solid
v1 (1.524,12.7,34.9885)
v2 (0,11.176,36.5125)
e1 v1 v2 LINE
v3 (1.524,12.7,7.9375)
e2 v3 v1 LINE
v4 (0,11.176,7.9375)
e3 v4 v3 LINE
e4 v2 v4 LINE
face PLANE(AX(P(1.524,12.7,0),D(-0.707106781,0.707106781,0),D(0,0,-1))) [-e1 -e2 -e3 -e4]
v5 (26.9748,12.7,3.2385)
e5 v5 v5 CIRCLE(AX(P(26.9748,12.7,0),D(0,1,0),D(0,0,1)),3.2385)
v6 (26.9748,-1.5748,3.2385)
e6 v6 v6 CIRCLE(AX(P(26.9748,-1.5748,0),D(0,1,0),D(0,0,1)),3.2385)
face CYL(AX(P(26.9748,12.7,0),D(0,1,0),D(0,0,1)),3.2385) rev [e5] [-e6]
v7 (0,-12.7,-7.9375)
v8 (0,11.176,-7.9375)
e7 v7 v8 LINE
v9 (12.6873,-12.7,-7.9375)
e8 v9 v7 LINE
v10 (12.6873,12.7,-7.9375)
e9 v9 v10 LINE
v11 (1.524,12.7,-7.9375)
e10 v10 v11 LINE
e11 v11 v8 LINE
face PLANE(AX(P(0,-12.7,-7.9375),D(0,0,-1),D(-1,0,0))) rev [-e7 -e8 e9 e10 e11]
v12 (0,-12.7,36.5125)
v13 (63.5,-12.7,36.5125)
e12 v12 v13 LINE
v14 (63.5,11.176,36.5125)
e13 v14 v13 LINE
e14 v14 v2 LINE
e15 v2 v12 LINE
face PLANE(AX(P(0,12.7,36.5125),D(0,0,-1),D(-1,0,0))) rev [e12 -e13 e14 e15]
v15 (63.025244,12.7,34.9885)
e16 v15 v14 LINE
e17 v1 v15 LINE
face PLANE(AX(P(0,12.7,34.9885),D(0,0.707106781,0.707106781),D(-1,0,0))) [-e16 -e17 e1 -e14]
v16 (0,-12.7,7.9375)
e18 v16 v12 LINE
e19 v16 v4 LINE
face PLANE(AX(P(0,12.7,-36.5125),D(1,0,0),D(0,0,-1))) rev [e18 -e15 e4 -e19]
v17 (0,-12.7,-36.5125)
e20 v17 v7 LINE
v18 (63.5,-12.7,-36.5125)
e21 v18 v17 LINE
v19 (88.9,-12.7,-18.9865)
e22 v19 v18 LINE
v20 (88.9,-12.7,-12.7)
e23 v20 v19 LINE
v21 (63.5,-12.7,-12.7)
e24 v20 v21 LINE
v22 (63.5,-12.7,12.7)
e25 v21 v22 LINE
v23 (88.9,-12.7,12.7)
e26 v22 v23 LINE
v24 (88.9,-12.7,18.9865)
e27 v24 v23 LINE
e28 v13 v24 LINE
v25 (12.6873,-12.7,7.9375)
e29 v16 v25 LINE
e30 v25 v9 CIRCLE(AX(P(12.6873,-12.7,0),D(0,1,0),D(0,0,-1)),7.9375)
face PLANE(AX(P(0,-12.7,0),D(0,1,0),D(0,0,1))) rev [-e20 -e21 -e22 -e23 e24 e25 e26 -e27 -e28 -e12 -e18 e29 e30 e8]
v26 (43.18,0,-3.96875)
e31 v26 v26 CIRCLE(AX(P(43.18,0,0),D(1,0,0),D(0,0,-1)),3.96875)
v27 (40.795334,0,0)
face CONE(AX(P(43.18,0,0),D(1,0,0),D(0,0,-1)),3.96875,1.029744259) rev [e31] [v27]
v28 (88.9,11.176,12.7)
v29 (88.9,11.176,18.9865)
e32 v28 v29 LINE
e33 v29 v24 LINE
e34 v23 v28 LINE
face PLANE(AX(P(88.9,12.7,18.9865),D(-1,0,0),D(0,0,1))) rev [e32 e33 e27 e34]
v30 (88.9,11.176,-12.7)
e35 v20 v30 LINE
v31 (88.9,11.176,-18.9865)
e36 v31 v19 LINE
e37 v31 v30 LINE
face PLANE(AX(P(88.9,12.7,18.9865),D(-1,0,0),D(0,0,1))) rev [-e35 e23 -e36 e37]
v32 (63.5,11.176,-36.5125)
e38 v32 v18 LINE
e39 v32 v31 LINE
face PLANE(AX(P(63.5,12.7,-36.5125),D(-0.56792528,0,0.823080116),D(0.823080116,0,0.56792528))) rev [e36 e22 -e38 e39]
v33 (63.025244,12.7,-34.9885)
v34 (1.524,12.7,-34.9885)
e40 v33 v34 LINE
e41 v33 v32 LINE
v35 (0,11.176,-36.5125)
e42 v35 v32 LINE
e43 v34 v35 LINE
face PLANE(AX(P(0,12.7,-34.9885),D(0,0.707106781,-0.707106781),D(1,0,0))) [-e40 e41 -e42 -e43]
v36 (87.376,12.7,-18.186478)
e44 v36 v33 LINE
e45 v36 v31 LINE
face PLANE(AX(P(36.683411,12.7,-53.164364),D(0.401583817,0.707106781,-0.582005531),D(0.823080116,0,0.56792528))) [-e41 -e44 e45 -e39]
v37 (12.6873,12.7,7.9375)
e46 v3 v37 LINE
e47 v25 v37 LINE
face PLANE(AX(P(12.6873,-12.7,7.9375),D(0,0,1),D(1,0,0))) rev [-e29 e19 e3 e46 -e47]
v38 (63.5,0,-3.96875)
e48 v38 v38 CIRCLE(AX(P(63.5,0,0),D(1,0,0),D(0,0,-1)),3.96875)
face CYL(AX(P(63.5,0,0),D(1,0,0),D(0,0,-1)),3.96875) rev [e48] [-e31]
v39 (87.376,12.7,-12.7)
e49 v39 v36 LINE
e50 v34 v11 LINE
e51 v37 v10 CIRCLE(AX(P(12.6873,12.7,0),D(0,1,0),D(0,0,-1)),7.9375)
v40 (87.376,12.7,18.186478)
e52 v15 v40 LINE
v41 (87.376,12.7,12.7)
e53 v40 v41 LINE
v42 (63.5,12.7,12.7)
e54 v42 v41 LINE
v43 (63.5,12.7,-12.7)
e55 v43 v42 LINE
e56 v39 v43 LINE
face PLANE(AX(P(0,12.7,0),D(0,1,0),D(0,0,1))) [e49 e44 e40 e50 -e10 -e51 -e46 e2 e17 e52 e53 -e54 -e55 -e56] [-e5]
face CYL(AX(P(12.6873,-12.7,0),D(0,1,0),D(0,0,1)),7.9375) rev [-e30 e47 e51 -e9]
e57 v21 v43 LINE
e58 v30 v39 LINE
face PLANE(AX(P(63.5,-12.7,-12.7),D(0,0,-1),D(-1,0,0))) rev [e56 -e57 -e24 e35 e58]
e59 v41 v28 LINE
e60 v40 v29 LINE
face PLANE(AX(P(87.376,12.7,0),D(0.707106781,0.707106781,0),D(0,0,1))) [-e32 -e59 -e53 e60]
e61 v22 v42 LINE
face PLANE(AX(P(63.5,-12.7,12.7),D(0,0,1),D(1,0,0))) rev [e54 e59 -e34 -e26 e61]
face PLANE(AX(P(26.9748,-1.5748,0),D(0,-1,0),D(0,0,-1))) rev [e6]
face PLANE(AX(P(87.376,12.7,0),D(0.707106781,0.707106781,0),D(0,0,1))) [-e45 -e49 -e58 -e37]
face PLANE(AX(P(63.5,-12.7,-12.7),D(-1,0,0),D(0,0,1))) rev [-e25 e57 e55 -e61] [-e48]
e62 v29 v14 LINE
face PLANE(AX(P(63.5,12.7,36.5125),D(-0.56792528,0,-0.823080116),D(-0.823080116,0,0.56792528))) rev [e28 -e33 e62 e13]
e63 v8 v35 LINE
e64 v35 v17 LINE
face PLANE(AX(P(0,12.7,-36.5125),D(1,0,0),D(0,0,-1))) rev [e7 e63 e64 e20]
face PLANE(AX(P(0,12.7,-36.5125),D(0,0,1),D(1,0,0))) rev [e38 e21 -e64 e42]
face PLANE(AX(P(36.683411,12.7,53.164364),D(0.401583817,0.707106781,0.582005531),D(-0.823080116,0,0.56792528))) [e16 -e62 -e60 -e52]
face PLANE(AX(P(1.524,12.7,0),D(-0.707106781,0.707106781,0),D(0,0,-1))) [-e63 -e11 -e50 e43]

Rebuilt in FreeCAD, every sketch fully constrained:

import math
import FreeCAD as App
import Part
import Sketcher
Q = App.Units.Quantity


def edges_at(feature, points):
    """Names of the edges that pass closest to the given points."""
    edges = feature.Shape.Edges
    near = lambda p: min(range(len(edges)), key=lambda i: edges[i].distToShape(Part.Vertex(*p))[0])
    return sorted({f"Edge{near(p) + 1}" for p in points})

doc = App.newDocument("Part")
params = doc.addObject("Spreadsheet::Sheet", "Params")
for row, (alias, value) in enumerate([
    ("sketch1_width", "2.5 in"),
    ("sketch1_height", "2.875 in"),
    ("sketch1_height2", "1.495 in"),
    ("pad1_length", "1 in"),
    ("sketch2_width", "1 in"),
    ("sketch3_radius", "0.3125 in"),
    ("sketch4_diameter", "0.255 in"),
    ("hole_diameter", "0.255 in"),
    ("hole_depth", "0.562 in"),
    ("sketch5_diameter", "0.3125 in"),
    ("hole2_diameter", "0.3125 in"),
    ("hole2_depth", "0.8 in"),
    ("chamfer_size", "0.06 in"),
], start=1):
    params.set(f"A{row}", alias)
    params.set(f"B{row}", "=" + value)
    params.setAlias(f"B{row}", alias)

body = doc.addObject("PartDesign::Body", "Body")

# Sketch on XZ plane
sketch1 = doc.addObject("Sketcher::SketchObject", "Sketch")
body.addObject(sketch1)
sketch1.AttachmentSupport = (doc.XZ_Plane, [""])
sketch1.MapMode = "FlatFace"
sketch1.addGeometry([
    Part.LineSegment(App.Vector(0, -37, 0), App.Vector(0, 37, 0)),  # 0
    Part.LineSegment(App.Vector(0, 37, 0), App.Vector(64, 37, 0)),  # 1
    Part.LineSegment(App.Vector(64, 37, 0), App.Vector(89, 19, 0)),  # 2
    Part.LineSegment(App.Vector(89, 19, 0), App.Vector(89, -19, 0)),  # 3
    Part.LineSegment(App.Vector(89, -19, 0), App.Vector(64, -37, 0)),  # 4
    Part.LineSegment(App.Vector(64, -37, 0), App.Vector(0, -37, 0)),  # 5
], False)
sketch1.addConstraint([
    Sketcher.Constraint("Coincident", 0, 2, 1, 1),
    Sketcher.Constraint("Coincident", 1, 2, 2, 1),
    Sketcher.Constraint("Coincident", 2, 2, 3, 1),
    Sketcher.Constraint("Coincident", 3, 2, 4, 1),
    Sketcher.Constraint("Coincident", 4, 2, 5, 1),
    Sketcher.Constraint("Coincident", 5, 2, 0, 1),
    Sketcher.Constraint("Vertical", 0),
    Sketcher.Constraint("Horizontal", 1),
    Sketcher.Constraint("Vertical", 3),
    Sketcher.Constraint("Horizontal", 5),
    Sketcher.Constraint("Symmetric", 0, 2, 5, 2, -1, 1),
    Sketcher.Constraint("Vertical", 1, 2, 4, 2),
    Sketcher.Constraint("Equal", 2, 4),
    Sketcher.Constraint("DistanceX", 1, 1, 1, 2, Q("2.5 in")),
    Sketcher.Constraint("DistanceX", 1, 2, 2, 2, Q("1 in")),
    Sketcher.Constraint("DistanceY", 0, 1, 0, 2, Q("2.875 in")),
    Sketcher.Constraint("DistanceY", 3, 2, 3, 1, Q("1.495 in")),
])
sketch1.setExpression("Constraints[13]", "Params.sketch1_width")
sketch1.setExpression("Constraints[15]", "Params.sketch1_height")
sketch1.setExpression("Constraints[16]", "Params.sketch1_height2")
pad1 = doc.addObject("PartDesign::Pad", "Pad")
body.addObject(pad1)
pad1.Profile = sketch1
pad1.setExpression("Length", "Params.pad1_length")
pad1.Midplane = True

# Sketch on XZ plane
sketch2 = doc.addObject("Sketcher::SketchObject", "Sketch001")
body.addObject(sketch2)
sketch2.AttachmentSupport = (doc.XZ_Plane, [""])
sketch2.MapMode = "FlatFace"
sketch2.AttachmentOffset = App.Placement(App.Vector(0, 0, -0.5 * 25.4), App.Rotation())
sketch2.addGeometry([
    Part.LineSegment(App.Vector(64, -13, 0), App.Vector(64, 13, 0)),
    Part.LineSegment(App.Vector(64, 13, 0), App.Vector(89, 13, 0)),
    Part.LineSegment(App.Vector(89, 13, 0), App.Vector(89, -13, 0)),
    Part.LineSegment(App.Vector(89, -13, 0), App.Vector(64, -13, 0)),
], False)
sketch2.addConstraint([
    Sketcher.Constraint("Coincident", 0, 2, 1, 1),
    Sketcher.Constraint("Coincident", 1, 2, 2, 1),
    Sketcher.Constraint("Coincident", 2, 2, 3, 1),
    Sketcher.Constraint("Coincident", 3, 2, 0, 1),
    Sketcher.Constraint("Vertical", 0),
    Sketcher.Constraint("Horizontal", 1),
    Sketcher.Constraint("Vertical", 2),
    Sketcher.Constraint("Horizontal", 3),
    Sketcher.Constraint("Equal", 3, 0),
    Sketcher.Constraint("DistanceX", 1, 1, 1, 2, Q("1 in")),
    Sketcher.Constraint("DistanceX", -1, 1, 0, 2, Q("2.5 in")),
    Sketcher.Constraint("DistanceY", -1, 1, 0, 2, Q("0.5 in")),
])
sketch2.setExpression("Constraints[9]", "Params.sketch2_width")
pocket1 = doc.addObject("PartDesign::Pocket", "Pocket")
body.addObject(pocket1)
pocket1.Profile = sketch2
pocket1.Type = "ThroughAll"
pocket1.Reversed = True

# Sketch on XZ plane
sketch3 = doc.addObject("Sketcher::SketchObject", "Sketch002")
body.addObject(sketch3)
sketch3.AttachmentSupport = (doc.XZ_Plane, [""])
sketch3.MapMode = "FlatFace"
sketch3.AttachmentOffset = App.Placement(App.Vector(0, 0, -0.5 * 25.4), App.Rotation())
sketch3.addGeometry([
    Part.LineSegment(App.Vector(13, -8, 0), App.Vector(0, -8, 0)),
    Part.LineSegment(App.Vector(0, -8, 0), App.Vector(0, 8, 0)),
    Part.LineSegment(App.Vector(0, 8, 0), App.Vector(13, 8, 0)),
    Part.ArcOfCircle(Part.Circle(App.Vector(13, 0, 0), App.Vector(0, 0, 1), 8), math.radians(-90), math.radians(90)),
], False)
sketch3.addConstraint([
    Sketcher.Constraint("Coincident", 0, 2, 1, 1),
    Sketcher.Constraint("Coincident", 1, 2, 2, 1),
    Sketcher.Constraint("Tangent", 2, 2, 3, 2),
    Sketcher.Constraint("Tangent", 3, 1, 0, 1),
    Sketcher.Constraint("Horizontal", 0),
    Sketcher.Constraint("Vertical", 1),
    Sketcher.Constraint("Horizontal", 2),
    Sketcher.Constraint("Symmetric", 0, 2, 1, 2, -1, 1),
    Sketcher.Constraint("Radius", 3, Q("0.3125 in")),
    Sketcher.Constraint("DistanceX", 0, 2, 0, 1, Q("0.4995 in")),
])
sketch3.setExpression("Constraints[8]", "Params.sketch3_radius")
pocket2 = doc.addObject("PartDesign::Pocket", "Pocket001")
body.addObject(pocket2)
pocket2.Profile = sketch3
pocket2.Type = "ThroughAll"
pocket2.Reversed = True

# Sketch on XZ plane
sketch4 = doc.addObject("Sketcher::SketchObject", "Sketch003")
body.addObject(sketch4)
sketch4.AttachmentSupport = (doc.XZ_Plane, [""])
sketch4.MapMode = "FlatFace"
sketch4.AttachmentOffset = App.Placement(App.Vector(0, 0, -0.5 * 25.4), App.Rotation())
sketch4.addGeometry(Part.Circle(App.Vector(27, 0, 0), App.Vector(0, 0, 1), 3.2), False)
sketch4.addConstraint([
    Sketcher.Constraint("PointOnObject", 0, 3, -1),
    Sketcher.Constraint("Diameter", 0, Q("0.255 in")),
    Sketcher.Constraint("DistanceX", -1, 1, 0, 3, Q("1.062 in")),
])
sketch4.setExpression("Constraints[1]", "Params.sketch4_diameter")
doc.recompute()
hole = doc.addObject("PartDesign::Hole", "Hole")
body.addObject(hole)
hole.Profile = sketch4
hole.ThreadType = "None"
hole.setExpression("Diameter", "Params.hole_diameter")
hole.DepthType = "Dimension"
hole.setExpression("Depth", "Params.hole_depth")
hole.DrillPoint = "Flat"
hole.Reversed = True

# Sketch on YZ plane
sketch5 = doc.addObject("Sketcher::SketchObject", "Sketch004")
body.addObject(sketch5)
sketch5.AttachmentSupport = (doc.YZ_Plane, [""])
sketch5.MapMode = "FlatFace"
sketch5.AttachmentOffset = App.Placement(App.Vector(0, 0, 2.5 * 25.4), App.Rotation())
sketch5.addGeometry(Part.Circle(App.Vector(0, 0, 0), App.Vector(0, 0, 1), 4), False)
sketch5.addConstraint([
    Sketcher.Constraint("Coincident", 0, 3, -1, 1),
    Sketcher.Constraint("Diameter", 0, Q("0.3125 in")),
])
sketch5.setExpression("Constraints[1]", "Params.sketch5_diameter")
doc.recompute()
hole2 = doc.addObject("PartDesign::Hole", "Hole001")
body.addObject(hole2)
hole2.Profile = sketch5
hole2.ThreadType = "None"
hole2.setExpression("Diameter", "Params.hole2_diameter")
hole2.DepthType = "Dimension"
hole2.setExpression("Depth", "Params.hole2_depth")
hole2.DrillPoint = "Angled"
hole2.DrillPointAngle = 118
doc.recompute()

chamfer = doc.addObject("PartDesign::Chamfer", "Chamfer")
body.addObject(chamfer)
chamfer.Base = (hole2, edges_at(hole2, [
    (31.75, 12.7, 36.513),
    (76.2, 12.7, 27.75),
    (88.9, 12.7, 15.843),
    (76.2, 12.7, -27.75),
    (88.9, 12.7, -15.843),
    (0, 12.7, 22.225),
    (31.75, 12.7, -36.513),
    (0, 12.7, -22.225),
]))
chamfer.setExpression("Size", "Params.chamfer_size")

doc.recompute()
